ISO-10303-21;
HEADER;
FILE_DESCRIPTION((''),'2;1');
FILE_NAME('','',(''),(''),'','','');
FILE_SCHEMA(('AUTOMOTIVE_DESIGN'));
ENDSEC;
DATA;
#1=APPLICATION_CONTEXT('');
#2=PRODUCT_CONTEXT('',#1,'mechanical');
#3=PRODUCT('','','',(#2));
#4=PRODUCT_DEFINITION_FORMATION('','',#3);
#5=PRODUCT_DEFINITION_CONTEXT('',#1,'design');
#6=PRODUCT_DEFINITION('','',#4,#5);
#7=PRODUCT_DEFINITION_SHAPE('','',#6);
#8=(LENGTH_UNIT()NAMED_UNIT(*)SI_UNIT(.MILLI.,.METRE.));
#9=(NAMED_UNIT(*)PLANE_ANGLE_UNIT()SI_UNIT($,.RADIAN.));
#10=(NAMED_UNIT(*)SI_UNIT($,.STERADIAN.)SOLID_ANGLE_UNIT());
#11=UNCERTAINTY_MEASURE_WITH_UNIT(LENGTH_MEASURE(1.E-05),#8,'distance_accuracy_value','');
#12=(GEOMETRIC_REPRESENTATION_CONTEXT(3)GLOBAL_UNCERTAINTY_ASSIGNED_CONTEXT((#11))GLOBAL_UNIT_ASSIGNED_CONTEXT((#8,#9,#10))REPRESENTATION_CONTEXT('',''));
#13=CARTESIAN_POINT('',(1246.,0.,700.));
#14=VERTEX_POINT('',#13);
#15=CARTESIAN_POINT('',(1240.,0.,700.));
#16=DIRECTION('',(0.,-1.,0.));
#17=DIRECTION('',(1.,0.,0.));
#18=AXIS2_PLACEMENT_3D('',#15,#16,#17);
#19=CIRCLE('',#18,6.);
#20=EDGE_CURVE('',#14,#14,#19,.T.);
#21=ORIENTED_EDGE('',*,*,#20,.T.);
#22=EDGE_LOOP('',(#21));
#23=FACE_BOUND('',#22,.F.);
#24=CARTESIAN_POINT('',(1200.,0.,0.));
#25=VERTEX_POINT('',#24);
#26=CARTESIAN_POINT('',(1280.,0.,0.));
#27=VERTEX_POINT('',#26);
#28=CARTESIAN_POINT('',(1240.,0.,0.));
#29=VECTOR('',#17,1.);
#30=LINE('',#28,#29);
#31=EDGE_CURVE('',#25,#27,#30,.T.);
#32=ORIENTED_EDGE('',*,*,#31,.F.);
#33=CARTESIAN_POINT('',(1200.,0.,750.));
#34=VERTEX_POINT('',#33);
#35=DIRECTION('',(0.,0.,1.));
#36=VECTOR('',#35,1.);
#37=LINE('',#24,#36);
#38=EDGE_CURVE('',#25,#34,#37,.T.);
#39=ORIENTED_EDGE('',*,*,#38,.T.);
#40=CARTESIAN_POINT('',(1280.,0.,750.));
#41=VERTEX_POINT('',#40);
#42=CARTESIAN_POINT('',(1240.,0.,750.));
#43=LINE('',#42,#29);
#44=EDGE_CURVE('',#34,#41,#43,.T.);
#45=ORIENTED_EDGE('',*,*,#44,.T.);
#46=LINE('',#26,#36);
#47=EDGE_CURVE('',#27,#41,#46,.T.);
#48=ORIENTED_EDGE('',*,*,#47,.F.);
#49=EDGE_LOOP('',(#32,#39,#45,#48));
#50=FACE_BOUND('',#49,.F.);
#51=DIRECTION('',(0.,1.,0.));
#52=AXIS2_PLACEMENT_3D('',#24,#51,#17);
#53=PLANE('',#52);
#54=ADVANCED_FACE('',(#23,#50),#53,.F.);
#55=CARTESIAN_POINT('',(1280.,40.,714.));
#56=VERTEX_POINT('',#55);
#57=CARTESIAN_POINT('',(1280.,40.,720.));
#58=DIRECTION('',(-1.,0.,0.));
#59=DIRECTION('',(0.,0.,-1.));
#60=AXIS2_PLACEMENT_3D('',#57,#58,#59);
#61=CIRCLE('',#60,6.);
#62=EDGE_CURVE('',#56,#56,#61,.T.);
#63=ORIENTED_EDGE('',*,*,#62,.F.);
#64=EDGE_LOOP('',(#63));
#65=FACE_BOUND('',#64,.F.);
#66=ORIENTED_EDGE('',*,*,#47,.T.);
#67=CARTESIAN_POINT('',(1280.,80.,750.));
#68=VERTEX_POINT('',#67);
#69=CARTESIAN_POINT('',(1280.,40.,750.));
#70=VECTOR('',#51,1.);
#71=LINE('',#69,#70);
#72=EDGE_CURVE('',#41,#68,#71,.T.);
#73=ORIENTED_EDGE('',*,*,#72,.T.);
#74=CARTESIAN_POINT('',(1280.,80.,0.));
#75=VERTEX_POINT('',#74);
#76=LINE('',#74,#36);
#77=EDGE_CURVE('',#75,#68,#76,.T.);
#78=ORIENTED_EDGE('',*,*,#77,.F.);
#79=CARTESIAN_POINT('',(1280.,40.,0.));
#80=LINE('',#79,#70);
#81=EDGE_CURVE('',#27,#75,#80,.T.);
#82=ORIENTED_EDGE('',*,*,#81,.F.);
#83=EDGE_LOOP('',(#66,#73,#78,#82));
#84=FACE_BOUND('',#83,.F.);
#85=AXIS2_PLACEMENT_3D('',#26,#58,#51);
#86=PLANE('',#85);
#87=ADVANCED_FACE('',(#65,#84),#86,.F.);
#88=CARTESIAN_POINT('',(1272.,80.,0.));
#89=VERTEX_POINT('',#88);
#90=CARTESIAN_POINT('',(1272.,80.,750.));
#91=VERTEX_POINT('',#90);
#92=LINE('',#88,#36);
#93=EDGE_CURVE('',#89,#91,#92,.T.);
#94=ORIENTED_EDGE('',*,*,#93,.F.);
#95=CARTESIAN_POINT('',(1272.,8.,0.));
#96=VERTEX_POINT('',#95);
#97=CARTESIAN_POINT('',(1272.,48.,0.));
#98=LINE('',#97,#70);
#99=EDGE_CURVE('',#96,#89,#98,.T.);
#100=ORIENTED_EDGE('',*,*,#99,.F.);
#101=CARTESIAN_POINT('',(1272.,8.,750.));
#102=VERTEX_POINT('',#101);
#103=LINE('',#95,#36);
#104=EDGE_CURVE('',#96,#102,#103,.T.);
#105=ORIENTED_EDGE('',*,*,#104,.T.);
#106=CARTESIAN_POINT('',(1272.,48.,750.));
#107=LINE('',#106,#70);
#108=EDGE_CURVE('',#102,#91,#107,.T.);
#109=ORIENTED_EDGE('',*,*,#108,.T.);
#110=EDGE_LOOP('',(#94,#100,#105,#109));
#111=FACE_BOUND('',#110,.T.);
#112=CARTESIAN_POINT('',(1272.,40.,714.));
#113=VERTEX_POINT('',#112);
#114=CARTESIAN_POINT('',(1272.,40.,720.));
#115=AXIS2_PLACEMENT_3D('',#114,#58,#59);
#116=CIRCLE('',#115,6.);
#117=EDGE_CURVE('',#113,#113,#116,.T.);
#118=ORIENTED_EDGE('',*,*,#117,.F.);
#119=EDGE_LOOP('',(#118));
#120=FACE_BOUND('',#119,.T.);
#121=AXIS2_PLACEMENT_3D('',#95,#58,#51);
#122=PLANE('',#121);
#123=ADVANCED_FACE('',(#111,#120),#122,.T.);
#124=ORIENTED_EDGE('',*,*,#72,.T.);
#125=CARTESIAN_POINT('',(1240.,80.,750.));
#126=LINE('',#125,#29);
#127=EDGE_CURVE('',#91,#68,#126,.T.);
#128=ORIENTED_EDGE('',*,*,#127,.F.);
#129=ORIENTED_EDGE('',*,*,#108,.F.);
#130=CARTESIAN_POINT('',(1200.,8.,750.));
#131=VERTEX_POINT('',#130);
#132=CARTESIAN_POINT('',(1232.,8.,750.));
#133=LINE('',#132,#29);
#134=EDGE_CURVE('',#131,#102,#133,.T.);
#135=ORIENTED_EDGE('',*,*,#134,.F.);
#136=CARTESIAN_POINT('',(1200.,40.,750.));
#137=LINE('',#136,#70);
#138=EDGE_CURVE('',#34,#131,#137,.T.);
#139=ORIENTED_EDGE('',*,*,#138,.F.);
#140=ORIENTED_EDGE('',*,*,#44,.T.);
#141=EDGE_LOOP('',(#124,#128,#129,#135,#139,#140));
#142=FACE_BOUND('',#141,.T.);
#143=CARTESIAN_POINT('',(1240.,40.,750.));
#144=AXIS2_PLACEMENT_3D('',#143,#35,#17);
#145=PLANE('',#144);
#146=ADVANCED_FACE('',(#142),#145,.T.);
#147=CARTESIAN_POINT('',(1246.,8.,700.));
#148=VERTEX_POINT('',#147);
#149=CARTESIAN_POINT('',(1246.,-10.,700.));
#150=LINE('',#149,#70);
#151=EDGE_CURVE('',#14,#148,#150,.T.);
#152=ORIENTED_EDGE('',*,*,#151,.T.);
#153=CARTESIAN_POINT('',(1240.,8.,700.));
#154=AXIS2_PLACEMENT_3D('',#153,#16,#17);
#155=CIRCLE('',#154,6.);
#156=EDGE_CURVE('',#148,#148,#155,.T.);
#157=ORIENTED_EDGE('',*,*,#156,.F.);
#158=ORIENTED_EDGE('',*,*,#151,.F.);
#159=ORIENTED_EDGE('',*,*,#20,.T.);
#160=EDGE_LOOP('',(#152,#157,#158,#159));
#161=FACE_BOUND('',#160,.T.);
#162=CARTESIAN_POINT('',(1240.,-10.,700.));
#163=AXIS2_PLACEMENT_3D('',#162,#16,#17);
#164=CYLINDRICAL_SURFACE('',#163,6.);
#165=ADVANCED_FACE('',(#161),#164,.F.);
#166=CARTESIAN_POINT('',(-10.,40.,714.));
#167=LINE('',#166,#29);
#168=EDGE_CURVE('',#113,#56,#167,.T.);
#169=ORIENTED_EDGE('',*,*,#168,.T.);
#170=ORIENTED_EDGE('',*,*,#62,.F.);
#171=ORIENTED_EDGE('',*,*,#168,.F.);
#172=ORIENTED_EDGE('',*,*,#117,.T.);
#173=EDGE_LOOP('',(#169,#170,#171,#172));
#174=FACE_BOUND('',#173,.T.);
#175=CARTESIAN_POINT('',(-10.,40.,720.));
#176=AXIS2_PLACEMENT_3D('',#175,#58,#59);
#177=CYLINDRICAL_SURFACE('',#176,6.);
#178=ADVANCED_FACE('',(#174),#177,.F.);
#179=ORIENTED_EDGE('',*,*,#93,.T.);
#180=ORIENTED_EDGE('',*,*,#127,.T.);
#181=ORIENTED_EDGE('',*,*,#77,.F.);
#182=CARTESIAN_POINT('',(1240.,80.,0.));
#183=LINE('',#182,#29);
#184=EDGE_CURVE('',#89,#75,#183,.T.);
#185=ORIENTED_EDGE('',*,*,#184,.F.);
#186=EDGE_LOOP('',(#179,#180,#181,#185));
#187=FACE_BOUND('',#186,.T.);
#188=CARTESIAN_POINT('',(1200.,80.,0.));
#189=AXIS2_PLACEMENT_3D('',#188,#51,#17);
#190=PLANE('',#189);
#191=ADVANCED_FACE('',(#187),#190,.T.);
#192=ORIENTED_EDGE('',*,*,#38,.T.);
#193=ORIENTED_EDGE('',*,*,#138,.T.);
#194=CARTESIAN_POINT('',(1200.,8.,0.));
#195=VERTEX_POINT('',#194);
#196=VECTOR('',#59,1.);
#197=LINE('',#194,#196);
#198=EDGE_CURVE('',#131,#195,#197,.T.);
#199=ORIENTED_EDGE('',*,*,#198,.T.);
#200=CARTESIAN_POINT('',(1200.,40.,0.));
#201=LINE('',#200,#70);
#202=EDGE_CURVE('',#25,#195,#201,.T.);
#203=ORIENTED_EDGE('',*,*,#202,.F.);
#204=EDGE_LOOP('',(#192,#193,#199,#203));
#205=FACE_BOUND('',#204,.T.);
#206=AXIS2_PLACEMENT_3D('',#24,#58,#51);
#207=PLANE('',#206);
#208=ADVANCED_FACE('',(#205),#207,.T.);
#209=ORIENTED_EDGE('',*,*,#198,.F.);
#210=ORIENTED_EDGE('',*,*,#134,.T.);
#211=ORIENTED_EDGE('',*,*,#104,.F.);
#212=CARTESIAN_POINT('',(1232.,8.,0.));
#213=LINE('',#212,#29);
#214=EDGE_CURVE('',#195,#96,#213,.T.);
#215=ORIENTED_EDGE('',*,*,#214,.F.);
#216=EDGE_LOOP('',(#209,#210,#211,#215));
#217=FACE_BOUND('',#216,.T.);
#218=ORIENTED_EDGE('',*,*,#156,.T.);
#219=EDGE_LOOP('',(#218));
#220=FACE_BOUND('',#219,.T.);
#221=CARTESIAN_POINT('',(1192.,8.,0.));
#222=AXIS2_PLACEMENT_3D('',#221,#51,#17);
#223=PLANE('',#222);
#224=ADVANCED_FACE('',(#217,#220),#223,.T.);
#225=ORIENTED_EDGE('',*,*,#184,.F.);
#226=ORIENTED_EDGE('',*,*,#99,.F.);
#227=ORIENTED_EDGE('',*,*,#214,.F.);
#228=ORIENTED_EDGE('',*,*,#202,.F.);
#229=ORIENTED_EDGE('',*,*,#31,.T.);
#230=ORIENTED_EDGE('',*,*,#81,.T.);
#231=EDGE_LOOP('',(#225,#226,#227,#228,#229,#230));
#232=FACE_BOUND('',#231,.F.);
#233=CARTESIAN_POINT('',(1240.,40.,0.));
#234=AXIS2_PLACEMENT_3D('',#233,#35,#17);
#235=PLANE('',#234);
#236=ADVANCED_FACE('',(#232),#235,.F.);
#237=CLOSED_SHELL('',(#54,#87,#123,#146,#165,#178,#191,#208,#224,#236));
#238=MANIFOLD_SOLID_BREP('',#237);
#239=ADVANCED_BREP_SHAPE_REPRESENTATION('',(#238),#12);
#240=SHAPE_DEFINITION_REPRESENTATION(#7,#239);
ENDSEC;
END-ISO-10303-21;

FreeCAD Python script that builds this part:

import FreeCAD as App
import Part
import Sketcher
from FreeCAD import Vector
Q = App.Units.Quantity


def add_polygon(sketch, points):
    """Adds a closed chain of lines whose ends are joined by coincident constraints."""
    first, n = sketch.GeometryCount, len(points)
    for a, b in zip(points, points[1:] + points[:1]):
        sketch.addGeometry(Part.LineSegment(App.Vector(*a, 0), App.Vector(*b, 0)), False)
    for i in range(n):
        sketch.addConstraint(Sketcher.Constraint("Coincident", first + i, 2, first + (i + 1) % n, 1))

doc = App.newDocument("Part")
body = doc.addObject("PartDesign::Body", "Body")

# Sketch on XY plane
sketch1 = body.newObject("Sketcher::SketchObject", "Sketch")
sketch1.AttachmentSupport = (doc.getObject("XY_Plane"), [""])
sketch1.MapMode = "FlatFace"
sketch1.addGeometry(Part.Circle(Vector(0, 0, 0), Vector(0, 0, 1), 6), False)
sketch1.addConstraint([
    Sketcher.Constraint("Coincident", 0, 3, -1, 1),
    Sketcher.Constraint("Diameter", 0, Q("12 mm")),
])
pad1 = body.newObject("PartDesign::Pad", "Pad")
pad1.Profile = sketch1
pad1.Length = 900
body2 = doc.addObject("PartDesign::Body", "Body001")
doc.recompute()

body.Placement = App.Placement(Vector(0, 0, 0), App.Rotation(Vector(1, 0, 0), 270))
boolean = body2.newObject("PartDesign::Boolean", "Boolean")
boolean.Type = "Fuse"
boolean.addObjects([body])
body3 = doc.addObject("PartDesign::Body", "Body002")
doc.recompute()

body2.Placement = App.Placement(Vector(1240, -10, 700), App.Rotation(Vector(0, 0, 1), 0))
boolean2 = body3.newObject("PartDesign::Boolean", "Boolean001")
boolean2.Type = "Fuse"
boolean2.addObjects([body2])
body4 = doc.addObject("PartDesign::Body", "Body003")

# Sketch on XY plane
sketch2 = body4.newObject("Sketcher::SketchObject", "Sketch001")
sketch2.AttachmentSupport = (doc.getObject("XY_Plane003"), [""])
sketch2.MapMode = "FlatFace"
sketch2.addGeometry(Part.Circle(Vector(0, 0, 0), Vector(0, 0, 1), 6), False)
sketch2.addConstraint([
    Sketcher.Constraint("Coincident", 0, 3, -1, 1),
    Sketcher.Constraint("Diameter", 0, Q("12 mm")),
])
pad2 = body4.newObject("PartDesign::Pad", "Pad001")
pad2.Profile = sketch2
pad2.Length = 1300
body5 = doc.addObject("PartDesign::Body", "Body004")
doc.recompute()

body4.Placement = App.Placement(Vector(0, 0, 0), App.Rotation(Vector(0, 1, 0), 90))
boolean3 = body5.newObject("PartDesign::Boolean", "Boolean002")
boolean3.Type = "Fuse"
boolean3.addObjects([body4])
body6 = doc.addObject("PartDesign::Body", "Body005")
doc.recompute()

body5.Placement = App.Placement(Vector(-10, 40, 720), App.Rotation(Vector(0, 0, 1), 0))
boolean4 = body6.newObject("PartDesign::Boolean", "Boolean003")
boolean4.Type = "Fuse"
boolean4.addObjects([body5])
body7 = doc.addObject("PartDesign::Body", "Body006")

# Sketch on XY plane
sketch3 = body7.newObject("Sketcher::SketchObject", "Sketch002")
sketch3.AttachmentSupport = (doc.getObject("XY_Plane006"), [""])
sketch3.MapMode = "FlatFace"
add_polygon(sketch3, [(1192, 88), (1192, 8), (1272, 8), (1272, 88)])  # lines 0-3
sketch3.addConstraint([
    Sketcher.Constraint("Vertical", 0),
    Sketcher.Constraint("Horizontal", 1),
    Sketcher.Constraint("Vertical", 2),
    Sketcher.Constraint("Horizontal", 3),
    Sketcher.Constraint("Equal", 3, 0),
    Sketcher.Constraint("DistanceX", 1, 1, 1, 2, Q("80 mm")),
    Sketcher.Constraint("DistanceX", -1, 1, 0, 2, Q("1192 mm")),
    Sketcher.Constraint("DistanceY", -1, 1, 0, 2, Q("8 mm")),
])
pad3 = body7.newObject("PartDesign::Pad", "Pad002")
pad3.Profile = sketch3
pad3.Length = 750
body8 = doc.addObject("PartDesign::Body", "Body007")

# Sketch on XY plane
sketch4 = body8.newObject("Sketcher::SketchObject", "Sketch003")
sketch4.AttachmentSupport = (doc.getObject("XY_Plane007"), [""])
sketch4.MapMode = "FlatFace"
add_polygon(sketch4, [(1200, 80), (1200, 0), (1280, 0), (1280, 80)])  # lines 0-3
sketch4.addConstraint([
    Sketcher.Constraint("Vertical", 0),
    Sketcher.Constraint("Horizontal", 1),
    Sketcher.Constraint("Vertical", 2),
    Sketcher.Constraint("Horizontal", 3),
    Sketcher.Constraint("PointOnObject", 0, 2, -1),
    Sketcher.Constraint("Equal", 3, 0),
    Sketcher.Constraint("DistanceX", 1, 1, 1, 2, Q("80 mm")),
    Sketcher.Constraint("DistanceX", -1, 1, 0, 2, Q("1200 mm")),
])
pad4 = body8.newObject("PartDesign::Pad", "Pad003")
pad4.Profile = sketch4
pad4.Length = 750
doc.recompute()

boolean5 = body8.newObject("PartDesign::Boolean", "Boolean004")
boolean5.Type = "Cut"
boolean5.addObjects([body7])
doc.recompute()

boolean6 = body8.newObject("PartDesign::Boolean", "Boolean005")
boolean6.Type = "Cut"
boolean6.addObjects([body6])
doc.recompute()

boolean7 = body8.newObject("PartDesign::Boolean", "Boolean006")
boolean7.Type = "Cut"
boolean7.addObjects([body3])

doc.recompute()
